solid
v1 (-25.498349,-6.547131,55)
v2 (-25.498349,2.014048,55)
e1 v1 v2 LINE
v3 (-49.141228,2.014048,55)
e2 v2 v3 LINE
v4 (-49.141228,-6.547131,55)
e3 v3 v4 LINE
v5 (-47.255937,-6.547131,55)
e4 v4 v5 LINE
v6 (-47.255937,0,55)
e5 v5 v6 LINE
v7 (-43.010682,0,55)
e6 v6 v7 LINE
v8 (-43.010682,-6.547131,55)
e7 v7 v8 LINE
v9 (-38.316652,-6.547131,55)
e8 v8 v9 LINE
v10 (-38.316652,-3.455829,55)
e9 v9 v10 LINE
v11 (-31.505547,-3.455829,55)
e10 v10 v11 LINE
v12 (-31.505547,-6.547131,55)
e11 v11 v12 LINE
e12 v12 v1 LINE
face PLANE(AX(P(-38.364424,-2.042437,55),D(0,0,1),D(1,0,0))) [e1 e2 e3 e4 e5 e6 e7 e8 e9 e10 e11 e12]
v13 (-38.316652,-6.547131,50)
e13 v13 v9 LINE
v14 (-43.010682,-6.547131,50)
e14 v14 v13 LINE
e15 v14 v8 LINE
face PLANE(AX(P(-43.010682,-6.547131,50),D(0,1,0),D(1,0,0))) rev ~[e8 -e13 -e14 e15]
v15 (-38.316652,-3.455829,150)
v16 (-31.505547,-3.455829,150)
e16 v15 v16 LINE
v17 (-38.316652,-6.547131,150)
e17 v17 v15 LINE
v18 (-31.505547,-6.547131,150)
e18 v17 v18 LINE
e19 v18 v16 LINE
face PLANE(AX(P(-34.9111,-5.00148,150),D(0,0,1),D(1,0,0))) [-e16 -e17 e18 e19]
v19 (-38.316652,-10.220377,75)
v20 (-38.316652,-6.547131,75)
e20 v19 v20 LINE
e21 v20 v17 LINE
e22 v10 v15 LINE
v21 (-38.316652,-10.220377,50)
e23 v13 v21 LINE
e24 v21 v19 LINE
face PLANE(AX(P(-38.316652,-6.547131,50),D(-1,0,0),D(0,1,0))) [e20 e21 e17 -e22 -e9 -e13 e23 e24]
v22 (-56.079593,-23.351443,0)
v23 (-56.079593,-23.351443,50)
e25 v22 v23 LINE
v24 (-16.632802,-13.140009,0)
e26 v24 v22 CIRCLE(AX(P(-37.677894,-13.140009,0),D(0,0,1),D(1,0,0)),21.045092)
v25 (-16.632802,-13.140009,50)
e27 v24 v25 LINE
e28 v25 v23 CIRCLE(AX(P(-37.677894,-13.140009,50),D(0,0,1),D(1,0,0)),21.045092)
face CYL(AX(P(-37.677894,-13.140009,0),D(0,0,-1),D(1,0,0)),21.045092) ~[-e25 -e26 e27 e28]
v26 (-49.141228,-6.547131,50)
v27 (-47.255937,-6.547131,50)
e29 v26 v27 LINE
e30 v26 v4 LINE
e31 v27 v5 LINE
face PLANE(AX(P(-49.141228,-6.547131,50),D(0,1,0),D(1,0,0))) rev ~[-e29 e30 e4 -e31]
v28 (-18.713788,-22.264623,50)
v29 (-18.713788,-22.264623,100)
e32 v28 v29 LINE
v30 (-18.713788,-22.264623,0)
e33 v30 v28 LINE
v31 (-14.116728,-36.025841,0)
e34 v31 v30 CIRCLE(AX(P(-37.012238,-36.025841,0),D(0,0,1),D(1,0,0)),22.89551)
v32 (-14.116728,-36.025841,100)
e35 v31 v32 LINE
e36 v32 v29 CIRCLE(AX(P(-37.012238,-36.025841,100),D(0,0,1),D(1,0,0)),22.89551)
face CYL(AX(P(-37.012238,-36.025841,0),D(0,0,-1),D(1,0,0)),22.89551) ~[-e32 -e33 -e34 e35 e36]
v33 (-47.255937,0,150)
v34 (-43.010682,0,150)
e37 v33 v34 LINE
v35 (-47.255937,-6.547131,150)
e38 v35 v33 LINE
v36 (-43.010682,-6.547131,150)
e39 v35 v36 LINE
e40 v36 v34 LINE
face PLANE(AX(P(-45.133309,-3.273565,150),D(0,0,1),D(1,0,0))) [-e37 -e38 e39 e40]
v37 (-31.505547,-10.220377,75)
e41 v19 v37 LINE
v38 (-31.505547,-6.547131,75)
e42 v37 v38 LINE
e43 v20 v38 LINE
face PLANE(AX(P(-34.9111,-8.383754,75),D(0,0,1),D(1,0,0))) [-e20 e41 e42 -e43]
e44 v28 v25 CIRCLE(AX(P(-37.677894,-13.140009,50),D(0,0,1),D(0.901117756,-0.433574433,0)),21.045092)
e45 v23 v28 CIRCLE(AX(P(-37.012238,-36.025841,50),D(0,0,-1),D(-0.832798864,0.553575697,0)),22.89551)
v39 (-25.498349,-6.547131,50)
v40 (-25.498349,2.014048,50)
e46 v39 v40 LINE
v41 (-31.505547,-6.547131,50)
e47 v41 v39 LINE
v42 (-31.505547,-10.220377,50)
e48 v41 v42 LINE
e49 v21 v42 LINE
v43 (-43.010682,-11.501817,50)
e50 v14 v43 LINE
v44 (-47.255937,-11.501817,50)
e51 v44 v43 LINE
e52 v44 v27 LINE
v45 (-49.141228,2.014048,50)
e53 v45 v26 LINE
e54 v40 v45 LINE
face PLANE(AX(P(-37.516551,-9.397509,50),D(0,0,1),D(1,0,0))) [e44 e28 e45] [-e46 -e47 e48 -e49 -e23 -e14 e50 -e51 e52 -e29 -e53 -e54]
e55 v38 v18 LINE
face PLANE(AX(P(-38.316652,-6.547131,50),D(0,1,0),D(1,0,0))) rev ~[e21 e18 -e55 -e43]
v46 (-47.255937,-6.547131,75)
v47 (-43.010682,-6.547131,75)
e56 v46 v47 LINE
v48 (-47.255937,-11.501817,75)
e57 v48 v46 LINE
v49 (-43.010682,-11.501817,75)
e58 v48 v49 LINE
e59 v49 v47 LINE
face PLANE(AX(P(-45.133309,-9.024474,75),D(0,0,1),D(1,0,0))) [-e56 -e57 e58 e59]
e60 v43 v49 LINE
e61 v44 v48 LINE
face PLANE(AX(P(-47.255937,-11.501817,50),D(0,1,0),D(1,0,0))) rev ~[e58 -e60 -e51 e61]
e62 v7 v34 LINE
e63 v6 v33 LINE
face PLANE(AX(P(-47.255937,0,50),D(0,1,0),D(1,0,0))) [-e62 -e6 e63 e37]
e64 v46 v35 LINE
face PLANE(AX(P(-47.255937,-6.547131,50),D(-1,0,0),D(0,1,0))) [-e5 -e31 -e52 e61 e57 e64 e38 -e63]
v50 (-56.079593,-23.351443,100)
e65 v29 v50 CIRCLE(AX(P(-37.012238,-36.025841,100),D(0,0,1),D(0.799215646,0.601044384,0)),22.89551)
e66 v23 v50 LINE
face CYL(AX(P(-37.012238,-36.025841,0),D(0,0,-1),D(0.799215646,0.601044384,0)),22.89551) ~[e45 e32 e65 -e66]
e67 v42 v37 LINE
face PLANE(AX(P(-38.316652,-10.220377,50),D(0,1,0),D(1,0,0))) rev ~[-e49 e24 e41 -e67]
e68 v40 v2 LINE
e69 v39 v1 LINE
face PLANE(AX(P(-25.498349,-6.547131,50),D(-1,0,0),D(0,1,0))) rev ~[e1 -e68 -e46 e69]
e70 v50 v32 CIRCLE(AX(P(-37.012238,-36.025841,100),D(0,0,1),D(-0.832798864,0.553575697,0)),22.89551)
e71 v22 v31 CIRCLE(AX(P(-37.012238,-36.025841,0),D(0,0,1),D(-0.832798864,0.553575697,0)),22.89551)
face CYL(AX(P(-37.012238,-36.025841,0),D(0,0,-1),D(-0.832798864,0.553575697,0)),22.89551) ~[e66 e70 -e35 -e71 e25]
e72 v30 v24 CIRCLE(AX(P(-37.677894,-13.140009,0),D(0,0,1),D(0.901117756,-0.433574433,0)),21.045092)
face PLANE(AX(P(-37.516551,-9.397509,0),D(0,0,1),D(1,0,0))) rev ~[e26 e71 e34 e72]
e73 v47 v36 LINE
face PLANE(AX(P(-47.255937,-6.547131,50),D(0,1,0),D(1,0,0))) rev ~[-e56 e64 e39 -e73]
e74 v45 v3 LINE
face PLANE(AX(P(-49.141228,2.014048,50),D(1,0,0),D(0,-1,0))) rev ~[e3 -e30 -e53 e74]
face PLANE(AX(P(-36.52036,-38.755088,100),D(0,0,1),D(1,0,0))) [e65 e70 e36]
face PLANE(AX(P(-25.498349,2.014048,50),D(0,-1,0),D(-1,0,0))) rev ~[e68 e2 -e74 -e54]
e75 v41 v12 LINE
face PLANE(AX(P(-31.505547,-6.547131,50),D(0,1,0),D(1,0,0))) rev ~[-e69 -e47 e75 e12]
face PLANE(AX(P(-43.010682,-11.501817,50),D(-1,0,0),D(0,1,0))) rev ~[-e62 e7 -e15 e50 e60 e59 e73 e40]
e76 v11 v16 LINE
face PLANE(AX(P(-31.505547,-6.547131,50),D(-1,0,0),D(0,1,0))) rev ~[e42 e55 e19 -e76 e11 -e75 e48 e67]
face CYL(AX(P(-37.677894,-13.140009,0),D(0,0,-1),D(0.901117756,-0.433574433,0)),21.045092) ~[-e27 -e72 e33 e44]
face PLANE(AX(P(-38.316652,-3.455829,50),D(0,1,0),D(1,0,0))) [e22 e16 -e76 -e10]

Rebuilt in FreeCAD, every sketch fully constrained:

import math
import FreeCAD as App
import Part
import Sketcher

doc = App.newDocument("Part")
body = doc.addObject("PartDesign::Body", "Body")

# Sketch on XY plane
sketch1 = doc.addObject("Sketcher::SketchObject", "Sketch")
body.addObject(sketch1)
sketch1.AttachmentSupport = (doc.XY_Plane, [""])
sketch1.MapMode = "FlatFace"
sketch1.addGeometry([
    Part.ArcOfCircle(Part.Circle(App.Vector(-37.012238, -36.025841, 0), App.Vector(0, 0, 1), 22.89551), math.radians(146.387332), math.radians(360)),
    Part.ArcOfCircle(Part.Circle(App.Vector(-37.012238, -36.025841, 0), App.Vector(0, 0, 1), 22.89551), math.radians(0), math.radians(36.944733)),
    Part.ArcOfCircle(Part.Circle(App.Vector(-37.012238, -36.025841, 0), App.Vector(0, 0, 1), 22.89551), math.radians(36.944733), math.radians(146.387332)),
], False)
sketch1.addConstraint([
    Sketcher.Constraint("Tangent", 0, 2, 1, 1),
    Sketcher.Constraint("Tangent", 1, 2, 2, 1),
    Sketcher.Constraint("Tangent", 2, 2, 0, 1),
    Sketcher.Constraint("Horizontal", 2, 3, 0, 2),
    Sketcher.Constraint("Radius", 0, 22.89551),
    Sketcher.Constraint("DistanceX", 0, 3, -1, 1, 37.012238),
    Sketcher.Constraint("DistanceY", 0, 3, -1, 1, 36.025841),
    Sketcher.Constraint("DistanceX", 1, 2, -1, 1, 18.713788),
    Sketcher.Constraint("DistanceY", 2, 2, 1, 2, 1.08682),
])
pad1 = doc.addObject("PartDesign::Pad", "Pad")
body.addObject(pad1)
pad1.Profile = sketch1
pad1.Length = 100

# Sketch on XY plane
sketch2 = doc.addObject("Sketcher::SketchObject", "Sketch001")
body.addObject(sketch2)
sketch2.AttachmentSupport = (doc.XY_Plane, [""])
sketch2.MapMode = "FlatFace"
sketch2.addGeometry([
    Part.ArcOfCircle(Part.Circle(App.Vector(-37.012238, -36.025841, 0), App.Vector(0, 0, 1), 22.89551), math.radians(36.944733), math.radians(146.387332)),
    Part.ArcOfCircle(Part.Circle(App.Vector(-37.677894, -13.140009, 0), App.Vector(0, 0, 1), 21.045092), math.radians(-25.694617), math.radians(0)),
    Part.ArcOfCircle(Part.Circle(App.Vector(-37.677894, -13.140009, 0), App.Vector(0, 0, 1), 21.045092), math.radians(0), math.radians(209.026682)),
], False)
sketch2.addConstraint([
    Sketcher.Constraint("Coincident", 0, 1, 1, 1),
    Sketcher.Constraint("Tangent", 1, 2, 2, 1),
    Sketcher.Constraint("Coincident", 2, 2, 0, 2),
    Sketcher.Constraint("Equal", 1, 2),
    Sketcher.Constraint("Horizontal", 2, 3, 1, 2),
    Sketcher.Constraint("Radius", 0, 22.89551),
    Sketcher.Constraint("Radius", 1, 21.045092),
    Sketcher.Constraint("DistanceX", 2, 2, 1, 3, 18.401699),
    Sketcher.Constraint("DistanceX", 0, 3, -1, 1, 37.012238),
    Sketcher.Constraint("DistanceY", 0, 3, -1, 1, 36.025841),
    Sketcher.Constraint("DistanceY", 1, 3, -1, 1, 13.140009),
])
pad2 = doc.addObject("PartDesign::Pad", "Pad001")
body.addObject(pad2)
pad2.Profile = sketch2
pad2.Length = 50

# Sketch on XY plane
sketch3 = doc.addObject("Sketcher::SketchObject", "Sketch002")
body.addObject(sketch3)
sketch3.AttachmentSupport = (doc.XY_Plane, [""])
sketch3.MapMode = "FlatFace"
sketch3.AttachmentOffset = App.Placement(App.Vector(0, 0, 50), App.Rotation())
sketch3.addGeometry([
    Part.LineSegment(App.Vector(-38.316652, -6.547131, 0), App.Vector(-38.316652, -10.220377, 0)),  # 0
    Part.LineSegment(App.Vector(-38.316652, -10.220377, 0), App.Vector(-31.505547, -10.220377, 0)),  # 1
    Part.LineSegment(App.Vector(-31.505547, -10.220377, 0), App.Vector(-31.505547, -6.547131, 0)),  # 2
    Part.LineSegment(App.Vector(-31.505547, -6.547131, 0), App.Vector(-38.316652, -6.547131, 0)),  # 3
    Part.LineSegment(App.Vector(-47.255937, -6.547131, 0), App.Vector(-47.255937, -11.501817, 0)),  # 4
    Part.LineSegment(App.Vector(-47.255937, -11.501817, 0), App.Vector(-43.010682, -11.501817, 0)),  # 5
    Part.LineSegment(App.Vector(-43.010682, -11.501817, 0), App.Vector(-43.010682, -6.547131, 0)),  # 6
    Part.LineSegment(App.Vector(-43.010682, -6.547131, 0), App.Vector(-47.255937, -6.547131, 0)),  # 7
], False)
sketch3.addConstraint([
    Sketcher.Constraint("Coincident", 0, 2, 1, 1),
    Sketcher.Constraint("Coincident", 1, 2, 2, 1),
    Sketcher.Constraint("Coincident", 2, 2, 3, 1),
    Sketcher.Constraint("Coincident", 3, 2, 0, 1),
    Sketcher.Constraint("Coincident", 4, 2, 5, 1),
    Sketcher.Constraint("Coincident", 5, 2, 6, 1),
    Sketcher.Constraint("Coincident", 6, 2, 7, 1),
    Sketcher.Constraint("Coincident", 7, 2, 4, 1),
    Sketcher.Constraint("Vertical", 0),
    Sketcher.Constraint("Horizontal", 1),
    Sketcher.Constraint("Vertical", 2),
    Sketcher.Constraint("Horizontal", 3),
    Sketcher.Constraint("Vertical", 4),
    Sketcher.Constraint("Horizontal", 5),
    Sketcher.Constraint("Vertical", 6),
    Sketcher.Constraint("Horizontal", 7),
    Sketcher.Constraint("Horizontal", 3, 2, 6, 2),
    Sketcher.Constraint("DistanceX", 1, 1, 1, 2, 6.811105),
    Sketcher.Constraint("DistanceX", 5, 1, 5, 2, 4.245255),
    Sketcher.Constraint("DistanceY", 0, 2, 0, 1, 3.673246),
    Sketcher.Constraint("DistanceY", 4, 2, 4, 1, 4.954686),
    Sketcher.Constraint("DistanceY", 2, 2, -1, 1, 6.547131),
    Sketcher.Constraint("DistanceX", 5, 2, -1, 1, 43.010682),
    Sketcher.Constraint("DistanceX", 4, 2, 1, 2, 15.75039),
])
pad3 = doc.addObject("PartDesign::Pad", "Pad002")
body.addObject(pad3)
pad3.Profile = sketch3
pad3.Length = 25

# Sketch on XY plane
sketch4 = doc.addObject("Sketcher::SketchObject", "Sketch003")
body.addObject(sketch4)
sketch4.AttachmentSupport = (doc.XY_Plane, [""])
sketch4.MapMode = "FlatFace"
sketch4.AttachmentOffset = App.Placement(App.Vector(0, 0, 50), App.Rotation())
sketch4.addGeometry([
    Part.LineSegment(App.Vector(-38.316652, -3.455829, 0), App.Vector(-38.316652, -6.547131, 0)),  # 0
    Part.LineSegment(App.Vector(-38.316652, -6.547131, 0), App.Vector(-31.505547, -6.547131, 0)),  # 1
    Part.LineSegment(App.Vector(-31.505547, -6.547131, 0), App.Vector(-31.505547, -3.455829, 0)),  # 2
    Part.LineSegment(App.Vector(-31.505547, -3.455829, 0), App.Vector(-38.316652, -3.455829, 0)),  # 3
    Part.LineSegment(App.Vector(-47.255937, 0, 0), App.Vector(-47.255937, -6.547131, 0)),  # 4
    Part.LineSegment(App.Vector(-47.255937, -6.547131, 0), App.Vector(-43.010682, -6.547131, 0)),  # 5
    Part.LineSegment(App.Vector(-43.010682, -6.547131, 0), App.Vector(-43.010682, 0, 0)),  # 6
    Part.LineSegment(App.Vector(-43.010682, 0, 0), App.Vector(-47.255937, 0, 0)),  # 7
], False)
sketch4.addConstraint([
    Sketcher.Constraint("Coincident", 0, 2, 1, 1),
    Sketcher.Constraint("Coincident", 1, 2, 2, 1),
    Sketcher.Constraint("Coincident", 2, 2, 3, 1),
    Sketcher.Constraint("Coincident", 3, 2, 0, 1),
    Sketcher.Constraint("Coincident", 4, 2, 5, 1),
    Sketcher.Constraint("Coincident", 5, 2, 6, 1),
    Sketcher.Constraint("Coincident", 6, 2, 7, 1),
    Sketcher.Constraint("Coincident", 7, 2, 4, 1),
    Sketcher.Constraint("Vertical", 0),
    Sketcher.Constraint("Horizontal", 1),
    Sketcher.Constraint("Vertical", 2),
    Sketcher.Constraint("Horizontal", 3),
    Sketcher.Constraint("Vertical", 4),
    Sketcher.Constraint("Horizontal", 5),
    Sketcher.Constraint("Vertical", 6),
    Sketcher.Constraint("Horizontal", 7),
    Sketcher.Constraint("PointOnObject", 6, 2, -1),
    Sketcher.Constraint("Horizontal", 1, 2, 4, 2),
    Sketcher.Constraint("DistanceY", 0, 2, 0, 1, 3.091301),
    Sketcher.Constraint("DistanceY", 4, 2, 4, 1, 6.547131),
    Sketcher.Constraint("DistanceX", 1, 1, 1, 2, 6.811105),
    Sketcher.Constraint("DistanceX", 5, 1, 5, 2, 4.245255),
    Sketcher.Constraint("DistanceX", 5, 2, -1, 1, 43.010682),
    Sketcher.Constraint("DistanceX", 4, 2, 1, 2, 15.75039),
])
pad4 = doc.addObject("PartDesign::Pad", "Pad003")
body.addObject(pad4)
pad4.Profile = sketch4
pad4.Length = 100

# Sketch on XY plane
sketch5 = doc.addObject("Sketcher::SketchObject", "Sketch004")
body.addObject(sketch5)
sketch5.AttachmentSupport = (doc.XY_Plane, [""])
sketch5.MapMode = "FlatFace"
sketch5.AttachmentOffset = App.Placement(App.Vector(0, 0, 50), App.Rotation())
sketch5.addGeometry([
    Part.LineSegment(App.Vector(-31.505547, -6.547131, 0), App.Vector(-25.498349, -6.547131, 0)),  # 0
    Part.LineSegment(App.Vector(-25.498349, -6.547131, 0), App.Vector(-25.498349, 2.014048, 0)),  # 1
    Part.LineSegment(App.Vector(-25.498349, 2.014048, 0), App.Vector(-49.141228, 2.014048, 0)),  # 2
    Part.LineSegment(App.Vector(-49.141228, 2.014048, 0), App.Vector(-49.141228, -6.547131, 0)),  # 3
    Part.LineSegment(App.Vector(-49.141228, -6.547131, 0), App.Vector(-47.255937, -6.547131, 0)),  # 4
    Part.LineSegment(App.Vector(-47.255937, -6.547131, 0), App.Vector(-47.255937, 0, 0)),  # 5
    Part.LineSegment(App.Vector(-47.255937, 0, 0), App.Vector(-43.010682, 0, 0)),  # 6
    Part.LineSegment(App.Vector(-43.010682, 0, 0), App.Vector(-43.010682, -6.547131, 0)),  # 7
    Part.LineSegment(App.Vector(-43.010682, -6.547131, 0), App.Vector(-38.316652, -6.547131, 0)),  # 8
    Part.LineSegment(App.Vector(-38.316652, -6.547131, 0), App.Vector(-38.316652, -3.455829, 0)),  # 9
    Part.LineSegment(App.Vector(-38.316652, -3.455829, 0), App.Vector(-31.505547, -3.455829, 0)),  # 10
    Part.LineSegment(App.Vector(-31.505547, -3.455829, 0), App.Vector(-31.505547, -6.547131, 0)),  # 11
], False)
sketch5.addConstraint([
    Sketcher.Constraint("Coincident", 0, 2, 1, 1),
    Sketcher.Constraint("Coincident", 1, 2, 2, 1),
    Sketcher.Constraint("Coincident", 2, 2, 3, 1),
    Sketcher.Constraint("Coincident", 3, 2, 4, 1),
    Sketcher.Constraint("Coincident", 4, 2, 5, 1),
    Sketcher.Constraint("Coincident", 5, 2, 6, 1),
    Sketcher.Constraint("Coincident", 6, 2, 7, 1),
    Sketcher.Constraint("Coincident", 7, 2, 8, 1),
    Sketcher.Constraint("Coincident", 8, 2, 9, 1),
    Sketcher.Constraint("Coincident", 9, 2, 10, 1),
    Sketcher.Constraint("Coincident", 10, 2, 11, 1),
    Sketcher.Constraint("Coincident", 11, 2, 0, 1),
    Sketcher.Constraint("Horizontal", 0),
    Sketcher.Constraint("Vertical", 1),
    Sketcher.Constraint("Horizontal", 2),
    Sketcher.Constraint("Vertical", 3),
    Sketcher.Constraint("Horizontal", 4),
    Sketcher.Constraint("Vertical", 5),
    Sketcher.Constraint("Horizontal", 6),
    Sketcher.Constraint("Vertical", 7),
    Sketcher.Constraint("Horizontal", 8),
    Sketcher.Constraint("Vertical", 9),
    Sketcher.Constraint("Horizontal", 10),
    Sketcher.Constraint("Vertical", 11),
    Sketcher.Constraint("PointOnObject", 5, 2, -1),
    Sketcher.Constraint("Horizontal", 0, 2, 3, 2),
    Sketcher.Constraint("Horizontal", 4, 2, 7, 2),
    Sketcher.Constraint("DistanceX", 0, 1, 0, 2, 6.007198),
    Sketcher.Constraint("DistanceY", 9, 1, 9, 2, 3.091301),
    Sketcher.Constraint("DistanceX", 2, 2, 2, 1, 23.642879),
    Sketcher.Constraint("DistanceX", 4, 1, 4, 2, 1.885291),
    Sketcher.Constraint("DistanceX", 8, 1, 8, 2, 4.69403),
    Sketcher.Constraint("DistanceY", 1, 1, 1, 2, 8.561179),
    Sketcher.Constraint("DistanceY", 5, 1, 5, 2, 6.547131),
    Sketcher.Constraint("DistanceX", 6, 1, 6, 2, 4.245255),
    Sketcher.Constraint("DistanceX", 0, 2, -1, 1, 25.498349),
])
pad5 = doc.addObject("PartDesign::Pad", "Pad004")
body.addObject(pad5)
pad5.Profile = sketch5
pad5.Length = 5

doc.recompute()
